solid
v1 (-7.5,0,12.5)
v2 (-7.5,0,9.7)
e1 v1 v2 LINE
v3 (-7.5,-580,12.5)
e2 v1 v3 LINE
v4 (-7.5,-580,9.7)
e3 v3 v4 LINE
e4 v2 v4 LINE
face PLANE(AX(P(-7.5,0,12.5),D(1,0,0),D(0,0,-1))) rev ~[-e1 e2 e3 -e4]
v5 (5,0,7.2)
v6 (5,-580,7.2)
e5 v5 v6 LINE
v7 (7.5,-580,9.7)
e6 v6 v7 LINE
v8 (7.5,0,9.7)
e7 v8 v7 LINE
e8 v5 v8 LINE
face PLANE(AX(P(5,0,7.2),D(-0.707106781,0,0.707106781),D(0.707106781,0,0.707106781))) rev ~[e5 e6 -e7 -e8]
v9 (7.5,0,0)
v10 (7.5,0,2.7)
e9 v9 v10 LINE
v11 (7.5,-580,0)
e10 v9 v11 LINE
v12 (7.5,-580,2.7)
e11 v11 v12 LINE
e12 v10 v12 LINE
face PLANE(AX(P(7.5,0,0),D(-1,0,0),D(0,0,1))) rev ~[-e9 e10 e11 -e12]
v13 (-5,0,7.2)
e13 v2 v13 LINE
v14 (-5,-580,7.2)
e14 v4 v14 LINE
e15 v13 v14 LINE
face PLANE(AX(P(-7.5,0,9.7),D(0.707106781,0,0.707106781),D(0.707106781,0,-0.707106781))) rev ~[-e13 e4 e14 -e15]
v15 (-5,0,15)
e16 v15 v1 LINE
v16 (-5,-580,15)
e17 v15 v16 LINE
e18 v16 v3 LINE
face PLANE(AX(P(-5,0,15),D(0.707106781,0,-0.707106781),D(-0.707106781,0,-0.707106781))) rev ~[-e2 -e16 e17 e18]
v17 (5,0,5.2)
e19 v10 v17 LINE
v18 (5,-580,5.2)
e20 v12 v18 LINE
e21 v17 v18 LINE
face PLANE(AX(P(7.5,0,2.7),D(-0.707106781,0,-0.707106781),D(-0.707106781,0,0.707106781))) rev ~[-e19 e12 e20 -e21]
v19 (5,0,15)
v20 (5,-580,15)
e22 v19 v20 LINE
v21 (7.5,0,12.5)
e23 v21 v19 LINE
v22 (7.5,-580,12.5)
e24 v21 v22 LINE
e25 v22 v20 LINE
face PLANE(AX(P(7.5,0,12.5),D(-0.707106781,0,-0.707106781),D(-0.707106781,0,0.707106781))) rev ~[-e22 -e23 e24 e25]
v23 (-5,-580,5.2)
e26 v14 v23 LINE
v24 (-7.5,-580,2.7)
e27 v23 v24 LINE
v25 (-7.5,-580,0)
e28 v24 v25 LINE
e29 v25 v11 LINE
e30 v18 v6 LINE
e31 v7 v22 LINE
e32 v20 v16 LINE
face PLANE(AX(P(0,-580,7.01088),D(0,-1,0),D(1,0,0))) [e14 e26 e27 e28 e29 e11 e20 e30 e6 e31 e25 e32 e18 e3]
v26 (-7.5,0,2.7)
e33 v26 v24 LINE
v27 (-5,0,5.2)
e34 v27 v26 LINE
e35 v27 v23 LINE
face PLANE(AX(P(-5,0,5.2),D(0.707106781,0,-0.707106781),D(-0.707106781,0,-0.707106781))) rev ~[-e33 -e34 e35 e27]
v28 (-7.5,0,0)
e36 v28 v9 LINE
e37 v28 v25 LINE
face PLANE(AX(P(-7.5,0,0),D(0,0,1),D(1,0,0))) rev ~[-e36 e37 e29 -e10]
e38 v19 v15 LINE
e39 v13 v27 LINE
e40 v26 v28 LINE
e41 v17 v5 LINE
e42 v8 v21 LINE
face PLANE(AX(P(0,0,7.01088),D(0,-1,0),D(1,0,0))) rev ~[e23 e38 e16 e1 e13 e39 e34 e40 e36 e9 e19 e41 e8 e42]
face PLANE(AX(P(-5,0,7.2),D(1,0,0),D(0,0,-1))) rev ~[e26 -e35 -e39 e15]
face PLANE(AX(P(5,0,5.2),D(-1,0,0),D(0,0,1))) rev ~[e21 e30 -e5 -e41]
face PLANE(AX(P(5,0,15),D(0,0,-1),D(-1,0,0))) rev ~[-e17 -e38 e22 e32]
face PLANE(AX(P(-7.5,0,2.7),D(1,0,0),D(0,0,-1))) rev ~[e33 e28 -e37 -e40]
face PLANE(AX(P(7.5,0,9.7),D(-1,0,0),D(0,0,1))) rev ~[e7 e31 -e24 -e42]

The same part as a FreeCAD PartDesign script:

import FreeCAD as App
import Part
import Sketcher
from FreeCAD import Vector

doc = App.newDocument("Part")
body = doc.addObject("PartDesign::Body", "Body")

# Sketch on XZ plane
sketch1 = body.newObject("Sketcher::SketchObject", "Sketch")
sketch1.AttachmentSupport = (doc.getObject("XZ_Plane"), [""])
sketch1.MapMode = "FlatFace"
sketch1.addGeometry([
    Part.LineSegment(Vector(-7.5, 0, 0), Vector(7.5, 0, 0)),  # 0
    Part.LineSegment(Vector(7.5, 0, 0), Vector(7.5, 2.7, 0)),  # 1
    Part.LineSegment(Vector(7.5, 2.7, 0), Vector(5, 5.2, 0)),  # 2
    Part.LineSegment(Vector(5, 5.2, 0), Vector(5, 7.2, 0)),  # 3
    Part.LineSegment(Vector(5, 7.2, 0), Vector(7.5, 9.7, 0)),  # 4
    Part.LineSegment(Vector(7.5, 9.7, 0), Vector(7.5, 12.5, 0)),  # 5
    Part.LineSegment(Vector(7.5, 12.5, 0), Vector(5, 15, 0)),  # 6
    Part.LineSegment(Vector(5, 15, 0), Vector(-5, 15, 0)),  # 7
    Part.LineSegment(Vector(-5, 15, 0), Vector(-7.5, 12.5, 0)),  # 8
    Part.LineSegment(Vector(-7.5, 12.5, 0), Vector(-7.5, 9.7, 0)),  # 9
    Part.LineSegment(Vector(-7.5, 9.7, 0), Vector(-5, 7.2, 0)),  # 10
    Part.LineSegment(Vector(-5, 7.2, 0), Vector(-5, 5.2, 0)),  # 11
    Part.LineSegment(Vector(-5, 5.2, 0), Vector(-7.5, 2.7, 0)),  # 12
    Part.LineSegment(Vector(-7.5, 2.7, 0), Vector(-7.5, 0, 0)),  # 13
], False)
sketch1.addConstraint([
    Sketcher.Constraint("Coincident", 0, 2, 1, 1),
    Sketcher.Constraint("Coincident", 1, 2, 2, 1),
    Sketcher.Constraint("Coincident", 2, 2, 3, 1),
    Sketcher.Constraint("Coincident", 3, 2, 4, 1),
    Sketcher.Constraint("Coincident", 4, 2, 5, 1),
    Sketcher.Constraint("Coincident", 5, 2, 6, 1),
    Sketcher.Constraint("Coincident", 6, 2, 7, 1),
    Sketcher.Constraint("Coincident", 7, 2, 8, 1),
    Sketcher.Constraint("Coincident", 8, 2, 9, 1),
    Sketcher.Constraint("Coincident", 9, 2, 10, 1),
    Sketcher.Constraint("Coincident", 10, 2, 11, 1),
    Sketcher.Constraint("Coincident", 11, 2, 12, 1),
    Sketcher.Constraint("Coincident", 12, 2, 13, 1),
    Sketcher.Constraint("Coincident", 13, 2, 0, 1),
    Sketcher.Constraint("Horizontal", 0),
    Sketcher.Constraint("Vertical", 1),
    Sketcher.Constraint("Vertical", 3),
    Sketcher.Constraint("Vertical", 5),
    Sketcher.Constraint("Horizontal", 7),
    Sketcher.Constraint("Vertical", 9),
    Sketcher.Constraint("Vertical", 11),
    Sketcher.Constraint("Vertical", 13),
    Sketcher.Constraint("Symmetric", 0, 2, 13, 2, -1, 1),
    Sketcher.Constraint("Symmetric", 5, 2, 8, 2, -2),
    Sketcher.Constraint("Symmetric", 3, 2, 10, 2, -2),
    Sketcher.Constraint("Perpendicular", 2, 4),
    Sketcher.Constraint("Perpendicular", 4, 6),
    Sketcher.Constraint("Perpendicular", 6, 8),
    Sketcher.Constraint("Perpendicular", 8, 10),
    Sketcher.Constraint("Perpendicular", 10, 12),
    Sketcher.Constraint("Horizontal", 4, 2, 9, 2),
    Sketcher.Constraint("Horizontal", 2, 2, 11, 2),
    Sketcher.Constraint("Vertical", 1, 2, 4, 2),
    Sketcher.Constraint("Vertical", 3, 2, 6, 2),
    Sketcher.Constraint("DistanceX", 0, 1, 0, 2, 15.0),
    Sketcher.Constraint("DistanceX", 7, 2, 7, 1, 10.0),
    Sketcher.Constraint("DistanceY", 3, 1, 3, 2, 2.0),
    Sketcher.Constraint("DistanceY", 1, 1, 1, 2, 2.7),
    Sketcher.Constraint("DistanceY", 5, 1, 5, 2, 2.8),
])
pad1 = body.newObject("PartDesign::Pad", "Pad")
pad1.Profile = sketch1
pad1.Length = 580

doc.recompute()
